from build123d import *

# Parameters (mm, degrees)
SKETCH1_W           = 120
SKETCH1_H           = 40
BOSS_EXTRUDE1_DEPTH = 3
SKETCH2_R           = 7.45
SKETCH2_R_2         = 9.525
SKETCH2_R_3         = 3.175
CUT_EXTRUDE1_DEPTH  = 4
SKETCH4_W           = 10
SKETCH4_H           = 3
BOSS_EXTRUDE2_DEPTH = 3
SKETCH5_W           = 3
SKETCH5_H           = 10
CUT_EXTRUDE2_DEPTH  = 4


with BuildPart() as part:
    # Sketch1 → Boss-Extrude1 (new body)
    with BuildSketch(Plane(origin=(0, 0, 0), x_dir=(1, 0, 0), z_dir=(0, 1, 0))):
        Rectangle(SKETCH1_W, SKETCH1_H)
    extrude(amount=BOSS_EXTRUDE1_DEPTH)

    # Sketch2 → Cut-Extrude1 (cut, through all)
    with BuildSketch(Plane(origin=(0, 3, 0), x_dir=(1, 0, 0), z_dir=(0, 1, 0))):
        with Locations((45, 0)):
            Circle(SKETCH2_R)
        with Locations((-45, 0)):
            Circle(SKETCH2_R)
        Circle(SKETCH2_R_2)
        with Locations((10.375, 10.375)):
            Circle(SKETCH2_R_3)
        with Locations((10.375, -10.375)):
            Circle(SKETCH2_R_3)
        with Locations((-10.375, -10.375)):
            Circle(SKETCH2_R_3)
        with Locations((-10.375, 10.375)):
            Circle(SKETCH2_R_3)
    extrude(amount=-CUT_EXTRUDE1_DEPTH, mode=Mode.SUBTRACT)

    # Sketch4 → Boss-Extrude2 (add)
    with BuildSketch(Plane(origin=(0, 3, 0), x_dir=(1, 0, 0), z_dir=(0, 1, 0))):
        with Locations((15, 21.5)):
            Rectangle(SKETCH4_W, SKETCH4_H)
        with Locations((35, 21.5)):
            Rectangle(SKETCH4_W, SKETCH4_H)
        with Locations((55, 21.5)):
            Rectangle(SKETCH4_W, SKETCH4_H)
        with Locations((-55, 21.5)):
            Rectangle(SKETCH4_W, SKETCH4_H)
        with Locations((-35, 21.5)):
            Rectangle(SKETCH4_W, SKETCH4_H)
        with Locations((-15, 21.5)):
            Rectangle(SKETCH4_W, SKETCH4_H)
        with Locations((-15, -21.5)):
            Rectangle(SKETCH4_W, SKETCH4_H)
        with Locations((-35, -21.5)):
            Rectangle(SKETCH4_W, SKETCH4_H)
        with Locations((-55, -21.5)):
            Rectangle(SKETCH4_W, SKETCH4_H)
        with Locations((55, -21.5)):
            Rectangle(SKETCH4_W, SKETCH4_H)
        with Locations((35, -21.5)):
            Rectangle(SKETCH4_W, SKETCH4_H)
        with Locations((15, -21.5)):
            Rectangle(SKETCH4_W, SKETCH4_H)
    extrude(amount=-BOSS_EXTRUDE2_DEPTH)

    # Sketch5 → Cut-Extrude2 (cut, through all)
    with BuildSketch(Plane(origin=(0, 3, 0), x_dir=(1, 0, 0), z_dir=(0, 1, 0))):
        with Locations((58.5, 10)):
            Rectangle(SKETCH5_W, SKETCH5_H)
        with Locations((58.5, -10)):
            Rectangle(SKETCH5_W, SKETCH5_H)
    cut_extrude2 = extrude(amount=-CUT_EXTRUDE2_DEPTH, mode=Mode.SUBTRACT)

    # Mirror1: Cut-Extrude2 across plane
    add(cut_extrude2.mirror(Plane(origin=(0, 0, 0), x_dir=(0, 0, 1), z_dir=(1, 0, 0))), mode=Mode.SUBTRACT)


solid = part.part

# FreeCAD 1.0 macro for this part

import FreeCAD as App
import Part
import Sketcher
Q = App.Units.Quantity

doc = App.newDocument("Part")
body = doc.addObject("PartDesign::Body", "Body")

# Sketch on XZ plane
sketch1 = doc.addObject("Sketcher::SketchObject", "Sketch")
body.addObject(sketch1)
sketch1.AttachmentSupport = (doc.XZ_Plane, [""])
sketch1.MapMode = "FlatFace"
sketch1.addGeometry([
    Part.LineSegment(App.Vector(-60, -20, 0), App.Vector(-60, 20, 0)),
    Part.LineSegment(App.Vector(-60, 20, 0), App.Vector(60, 20, 0)),
    Part.LineSegment(App.Vector(60, 20, 0), App.Vector(60, -20, 0)),
    Part.LineSegment(App.Vector(60, -20, 0), App.Vector(-60, -20, 0)),
], False)
sketch1.addConstraint([
    Sketcher.Constraint("Coincident", 0, 2, 1, 1),
    Sketcher.Constraint("Coincident", 1, 2, 2, 1),
    Sketcher.Constraint("Coincident", 2, 2, 3, 1),
    Sketcher.Constraint("Coincident", 3, 2, 0, 1),
    Sketcher.Constraint("Vertical", 0),
    Sketcher.Constraint("Horizontal", 1),
    Sketcher.Constraint("Vertical", 2),
    Sketcher.Constraint("Horizontal", 3),
    Sketcher.Constraint("Symmetric", 0, 2, 2, 2, -1, 1),
    Sketcher.Constraint("DistanceX", 1, 1, 1, 2, Q("120 mm")),
    Sketcher.Constraint("DistanceY", 0, 1, 0, 2, Q("40 mm")),
])
pad1 = doc.addObject("PartDesign::Pad", "Pad")
body.addObject(pad1)
pad1.Profile = sketch1
pad1.Length = 3
pad1.Reversed = True

# Sketch on XZ plane
sketch2 = doc.addObject("Sketcher::SketchObject", "Sketch001")
body.addObject(sketch2)
sketch2.AttachmentSupport = (doc.XZ_Plane, [""])
sketch2.MapMode = "FlatFace"
sketch2.AttachmentOffset = App.Placement(App.Vector(0, 0, -3), App.Rotation())
sketch2.addGeometry([
    Part.Circle(App.Vector(45, 0, 0), App.Vector(0, 0, 1), 7.5),  # 0
    Part.Circle(App.Vector(-45, 0, 0), App.Vector(0, 0, 1), 7.5),  # 1
    Part.Circle(App.Vector(0, 0, 0), App.Vector(0, 0, 1), 9.5),  # 2
    Part.Circle(App.Vector(10.4, -10.4, 0), App.Vector(0, 0, 1), 3.2),  # 3
    Part.Circle(App.Vector(10.4, 10.4, 0), App.Vector(0, 0, 1), 3.2),  # 4
    Part.Circle(App.Vector(-10.4, 10.4, 0), App.Vector(0, 0, 1), 3.2),  # 5
    Part.Circle(App.Vector(-10.4, -10.4, 0), App.Vector(0, 0, 1), 3.2),  # 6
], False)
sketch2.addConstraint([
    Sketcher.Constraint("Coincident", 2, 3, -1, 1),
    Sketcher.Constraint("Equal", 0, 1),
    Sketcher.Constraint("Equal", 3, 4),
    Sketcher.Constraint("Equal", 4, 5),
    Sketcher.Constraint("Equal", 5, 6),
    Sketcher.Constraint("Symmetric", 0, 3, 1, 3, -1, 1),
    Sketcher.Constraint("Symmetric", 3, 3, 5, 3, -1, 1),
    Sketcher.Constraint("Symmetric", 4, 3, 6, 3, -1, 1),
    Sketcher.Constraint("Symmetric", 4, 3, 5, 3, -2),
    Sketcher.Constraint("PointOnObject", 0, 3, -1),
    Sketcher.Constraint("Diameter", 0, Q("14.9 mm")),
    Sketcher.Constraint("Diameter", 2, Q("19.05 mm")),
    Sketcher.Constraint("Diameter", 3, Q("6.35 mm")),
    Sketcher.Constraint("DistanceX", -1, 1, 0, 3, Q("45 mm")),
    Sketcher.Constraint("DistanceY", 3, 3, 4, 3, Q("20.75 mm")),
    Sketcher.Constraint("DistanceX", 5, 3, 4, 3, Q("20.75 mm")),
])
pocket1 = doc.addObject("PartDesign::Pocket", "Pocket")
body.addObject(pocket1)
pocket1.Profile = sketch2
pocket1.Type = "ThroughAll"
pocket1.Reversed = True

# Sketch on XZ plane
sketch3 = doc.addObject("Sketcher::SketchObject", "Sketch002")
body.addObject(sketch3)
sketch3.AttachmentSupport = (doc.XZ_Plane, [""])
sketch3.MapMode = "FlatFace"
sketch3.AttachmentOffset = App.Placement(App.Vector(0, 0, -3), App.Rotation())
sketch3.addGeometry([
    Part.LineSegment(App.Vector(10, -23, 0), App.Vector(10, -20, 0)),  # 0
    Part.LineSegment(App.Vector(10, -20, 0), App.Vector(20, -20, 0)),  # 1
    Part.LineSegment(App.Vector(20, -20, 0), App.Vector(20, -23, 0)),  # 2
    Part.LineSegment(App.Vector(20, -23, 0), App.Vector(10, -23, 0)),  # 3
    Part.LineSegment(App.Vector(30, -23, 0), App.Vector(30, -20, 0)),  # 4
    Part.LineSegment(App.Vector(30, -20, 0), App.Vector(40, -20, 0)),  # 5
    Part.LineSegment(App.Vector(40, -20, 0), App.Vector(40, -23, 0)),  # 6
    Part.LineSegment(App.Vector(40, -23, 0), App.Vector(30, -23, 0)),  # 7
    Part.LineSegment(App.Vector(50, -23, 0), App.Vector(50, -20, 0)),  # 8
    Part.LineSegment(App.Vector(50, -20, 0), App.Vector(60, -20, 0)),  # 9
    Part.LineSegment(App.Vector(60, -20, 0), App.Vector(60, -23, 0)),  # 10
    Part.LineSegment(App.Vector(60, -23, 0), App.Vector(50, -23, 0)),  # 11
    Part.LineSegment(App.Vector(-60, -23, 0), App.Vector(-60, -20, 0)),  # 12
    Part.LineSegment(App.Vector(-60, -20, 0), App.Vector(-50, -20, 0)),  # 13
    Part.LineSegment(App.Vector(-50, -20, 0), App.Vector(-50, -23, 0)),  # 14
    Part.LineSegment(App.Vector(-50, -23, 0), App.Vector(-60, -23, 0)),  # 15
    Part.LineSegment(App.Vector(-40, -23, 0), App.Vector(-40, -20, 0)),  # 16
    Part.LineSegment(App.Vector(-40, -20, 0), App.Vector(-30, -20, 0)),  # 17
    Part.LineSegment(App.Vector(-30, -20, 0), App.Vector(-30, -23, 0)),  # 18
    Part.LineSegment(App.Vector(-30, -23, 0), App.Vector(-40, -23, 0)),  # 19
    Part.LineSegment(App.Vector(-20, -23, 0), App.Vector(-20, -20, 0)),  # 20
    Part.LineSegment(App.Vector(-20, -20, 0), App.Vector(-10, -20, 0)),  # 21
    Part.LineSegment(App.Vector(-10, -20, 0), App.Vector(-10, -23, 0)),  # 22
    Part.LineSegment(App.Vector(-10, -23, 0), App.Vector(-20, -23, 0)),  # 23
    Part.LineSegment(App.Vector(-20, 20, 0), App.Vector(-20, 23, 0)),  # 24
    Part.LineSegment(App.Vector(-20, 23, 0), App.Vector(-10, 23, 0)),  # 25
    Part.LineSegment(App.Vector(-10, 23, 0), App.Vector(-10, 20, 0)),  # 26
    Part.LineSegment(App.Vector(-10, 20, 0), App.Vector(-20, 20, 0)),  # 27
    Part.LineSegment(App.Vector(-40, 20, 0), App.Vector(-40, 23, 0)),  # 28
    Part.LineSegment(App.Vector(-40, 23, 0), App.Vector(-30, 23, 0)),  # 29
    Part.LineSegment(App.Vector(-30, 23, 0), App.Vector(-30, 20, 0)),  # 30
    Part.LineSegment(App.Vector(-30, 20, 0), App.Vector(-40, 20, 0)),  # 31
    Part.LineSegment(App.Vector(-60, 20, 0), App.Vector(-60, 23, 0)),  # 32
    Part.LineSegment(App.Vector(-60, 23, 0), App.Vector(-50, 23, 0)),  # 33
    Part.LineSegment(App.Vector(-50, 23, 0), App.Vector(-50, 20, 0)),  # 34
    Part.LineSegment(App.Vector(-50, 20, 0), App.Vector(-60, 20, 0)),  # 35
    Part.LineSegment(App.Vector(50, 20, 0), App.Vector(50, 23, 0)),  # 36
    Part.LineSegment(App.Vector(50, 23, 0), App.Vector(60, 23, 0)),  # 37
    Part.LineSegment(App.Vector(60, 23, 0), App.Vector(60, 20, 0)),  # 38
    Part.LineSegment(App.Vector(60, 20, 0), App.Vector(50, 20, 0)),  # 39
    Part.LineSegment(App.Vector(30, 20, 0), App.Vector(30, 23, 0)),  # 40
    Part.LineSegment(App.Vector(30, 23, 0), App.Vector(40, 23, 0)),  # 41
    Part.LineSegment(App.Vector(40, 23, 0), App.Vector(40, 20, 0)),  # 42
    Part.LineSegment(App.Vector(40, 20, 0), App.Vector(30, 20, 0)),  # 43
    Part.LineSegment(App.Vector(10, 20, 0), App.Vector(10, 23, 0)),  # 44
    Part.LineSegment(App.Vector(10, 23, 0), App.Vector(20, 23, 0)),  # 45
    Part.LineSegment(App.Vector(20, 23, 0), App.Vector(20, 20, 0)),  # 46
    Part.LineSegment(App.Vector(20, 20, 0), App.Vector(10, 20, 0)),  # 47
], False)
sketch3.addConstraint([
    Sketcher.Constraint("Coincident", 0, 2, 1, 1),
    Sketcher.Constraint("Coincident", 1, 2, 2, 1),
    Sketcher.Constraint("Coincident", 2, 2, 3, 1),
    Sketcher.Constraint("Coincident", 3, 2, 0, 1),
    Sketcher.Constraint("Coincident", 4, 2, 5, 1),
    Sketcher.Constraint("Coincident", 5, 2, 6, 1),
    Sketcher.Constraint("Coincident", 6, 2, 7, 1),
    Sketcher.Constraint("Coincident", 7, 2, 4, 1),
    Sketcher.Constraint("Coincident", 8, 2, 9, 1),
    Sketcher.Constraint("Coincident", 9, 2, 10, 1),
    Sketcher.Constraint("Coincident", 10, 2, 11, 1),
    Sketcher.Constraint("Coincident", 11, 2, 8, 1),
    Sketcher.Constraint("Coincident", 12, 2, 13, 1),
    Sketcher.Constraint("Coincident", 13, 2, 14, 1),
    Sketcher.Constraint("Coincident", 14, 2, 15, 1),
    Sketcher.Constraint("Coincident", 15, 2, 12, 1),
    Sketcher.Constraint("Coincident", 16, 2, 17, 1),
    Sketcher.Constraint("Coincident", 17, 2, 18, 1),
    Sketcher.Constraint("Coincident", 18, 2, 19, 1),
    Sketcher.Constraint("Coincident", 19, 2, 16, 1),
    Sketcher.Constraint("Coincident", 20, 2, 21, 1),
    Sketcher.Constraint("Coincident", 21, 2, 22, 1),
    Sketcher.Constraint("Coincident", 22, 2, 23, 1),
    Sketcher.Constraint("Coincident", 23, 2, 20, 1),
    Sketcher.Constraint("Coincident", 24, 2, 25, 1),
    Sketcher.Constraint("Coincident", 25, 2, 26, 1),
    Sketcher.Constraint("Coincident", 26, 2, 27, 1),
    Sketcher.Constraint("Coincident", 27, 2, 24, 1),
    Sketcher.Constraint("Coincident", 28, 2, 29, 1),
    Sketcher.Constraint("Coincident", 29, 2, 30, 1),
    Sketcher.Constraint("Coincident", 30, 2, 31, 1),
    Sketcher.Constraint("Coincident", 31, 2, 28, 1),
    Sketcher.Constraint("Coincident", 32, 2, 33, 1),
    Sketcher.Constraint("Coincident", 33, 2, 34, 1),
    Sketcher.Constraint("Coincident", 34, 2, 35, 1),
    Sketcher.Constraint("Coincident", 35, 2, 32, 1),
    Sketcher.Constraint("Coincident", 36, 2, 37, 1),
    Sketcher.Constraint("Coincident", 37, 2, 38, 1),
    Sketcher.Constraint("Coincident", 38, 2, 39, 1),
    Sketcher.Constraint("Coincident", 39, 2, 36, 1),
    Sketcher.Constraint("Coincident", 40, 2, 41, 1),
    Sketcher.Constraint("Coincident", 41, 2, 42, 1),
    Sketcher.Constraint("Coincident", 42, 2, 43, 1),
    Sketcher.Constraint("Coincident", 43, 2, 40, 1),
    Sketcher.Constraint("Coincident", 44, 2, 45, 1),
    Sketcher.Constraint("Coincident", 45, 2, 46, 1),
    Sketcher.Constraint("Coincident", 46, 2, 47, 1),
    Sketcher.Constraint("Coincident", 47, 2, 44, 1),
    Sketcher.Constraint("Vertical", 0),
    Sketcher.Constraint("Horizontal", 1),
    Sketcher.Constraint("Vertical", 2),
    Sketcher.Constraint("Horizontal", 3),
    Sketcher.Constraint("Vertical", 4),
    Sketcher.Constraint("Horizontal", 5),
    Sketcher.Constraint("Vertical", 6),
    Sketcher.Constraint("Horizontal", 7),
    Sketcher.Constraint("Vertical", 8),
    Sketcher.Constraint("Horizontal", 9),
    Sketcher.Constraint("Vertical", 10),
    Sketcher.Constraint("Horizontal", 11),
    Sketcher.Constraint("Vertical", 12),
    Sketcher.Constraint("Horizontal", 13),
    Sketcher.Constraint("Vertical", 14),
    Sketcher.Constraint("Horizontal", 15),
    Sketcher.Constraint("Vertical", 16),
    Sketcher.Constraint("Horizontal", 17),
    Sketcher.Constraint("Vertical", 18),
    Sketcher.Constraint("Horizontal", 19),
    Sketcher.Constraint("Vertical", 20),
    Sketcher.Constraint("Horizontal", 21),
    Sketcher.Constraint("Vertical", 22),
    Sketcher.Constraint("Horizontal", 23),
    Sketcher.Constraint("Vertical", 24),
    Sketcher.Constraint("Horizontal", 25),
    Sketcher.Constraint("Vertical", 26),
    Sketcher.Constraint("Horizontal", 27),
    Sketcher.Constraint("Vertical", 28),
    Sketcher.Constraint("Horizontal", 29),
    Sketcher.Constraint("Vertical", 30),
    Sketcher.Constraint("Horizontal", 31),
    Sketcher.Constraint("Vertical", 32),
    Sketcher.Constraint("Horizontal", 33),
    Sketcher.Constraint("Vertical", 34),
    Sketcher.Constraint("Horizontal", 35),
    Sketcher.Constraint("Vertical", 36),
    Sketcher.Constraint("Horizontal", 37),
    Sketcher.Constraint("Vertical", 38),
    Sketcher.Constraint("Horizontal", 39),
    Sketcher.Constraint("Vertical", 40),
    Sketcher.Constraint("Horizontal", 41),
    Sketcher.Constraint("Vertical", 42),
    Sketcher.Constraint("Horizontal", 43),
    Sketcher.Constraint("Vertical", 44),
    Sketcher.Constraint("Horizontal", 45),
    Sketcher.Constraint("Vertical", 46),
    Sketcher.Constraint("Horizontal", 47),
    Sketcher.Constraint("Symmetric", 2, 2, 24, 2, -1, 1),
    Sketcher.Constraint("Symmetric", 0, 2, 26, 2, -1, 1),
    Sketcher.Constraint("Symmetric", 6, 2, 28, 2, -1, 1),
    Sketcher.Constraint("Symmetric", 4, 2, 30, 2, -1, 1),
    Sketcher.Constraint("Symmetric", 10, 2, 32, 2, -1, 1),
    Sketcher.Constraint("Symmetric", 8, 2, 34, 2, -1, 1),
    Sketcher.Constraint("Symmetric", 14, 2, 36, 2, -1, 1),
    Sketcher.Constraint("Symmetric", 12, 2, 38, 2, -1, 1),
    Sketcher.Constraint("Symmetric", 18, 2, 40, 2, -1, 1),
    Sketcher.Constraint("Symmetric", 16, 2, 42, 2, -1, 1),
    Sketcher.Constraint("Symmetric", 22, 2, 44, 2, -1, 1),
    Sketcher.Constraint("Symmetric", 20, 2, 46, 2, -1, 1),
    Sketcher.Constraint("Symmetric", 9, 2, 12, 2, -2),
    Sketcher.Constraint("Symmetric", 11, 2, 14, 2, -2),
    Sketcher.Constraint("Symmetric", 5, 2, 16, 2, -2),
    Sketcher.Constraint("Symmetric", 7, 2, 18, 2, -2),
    Sketcher.Constraint("Symmetric", 1, 2, 20, 2, -2),
    Sketcher.Constraint("Symmetric", 3, 2, 22, 2, -2),
    Sketcher.Constraint("Horizontal", 1, 2, 4, 2),
    Sketcher.Constraint("Horizontal", 3, 2, 6, 2),
    Sketcher.Constraint("Horizontal", 5, 2, 8, 2),
    Sketcher.Constraint("Horizontal", 7, 2, 10, 2),
    Sketcher.Constraint("Equal", 3, 5),
    Sketcher.Constraint("Equal", 7, 9),
    Sketcher.Constraint("DistanceX", 1, 1, 1, 2, Q("10 mm")),
    Sketcher.Constraint("DistanceY", 0, 1, 0, 2, Q("3 mm")),
    Sketcher.Constraint("DistanceX", -1, 1, 0, 2, Q("10 mm")),
    Sketcher.Constraint("DistanceY", 0, 2, -1, 1, Q("20 mm")),
    Sketcher.Constraint("DistanceX", -1, 1, 4, 2, Q("30 mm")),
    Sketcher.Constraint("DistanceX", -1, 1, 8, 2, Q("50 mm")),
])
pad2 = doc.addObject("PartDesign::Pad", "Pad001")
body.addObject(pad2)
pad2.Profile = sketch3
pad2.Length = 3

# Sketch on XZ plane
sketch4 = doc.addObject("Sketcher::SketchObject", "Sketch003")
body.addObject(sketch4)
sketch4.AttachmentSupport = (doc.XZ_Plane, [""])
sketch4.MapMode = "FlatFace"
sketch4.AttachmentOffset = App.Placement(App.Vector(0, 0, -3), App.Rotation())
sketch4.addGeometry([
    Part.LineSegment(App.Vector(57, -15, 0), App.Vector(57, -5, 0)),  # 0
    Part.LineSegment(App.Vector(57, -5, 0), App.Vector(60, -5, 0)),  # 1
    Part.LineSegment(App.Vector(60, -5, 0), App.Vector(60, -15, 0)),  # 2
    Part.LineSegment(App.Vector(60, -15, 0), App.Vector(57, -15, 0)),  # 3
    Part.LineSegment(App.Vector(57, 5, 0), App.Vector(57, 15, 0)),  # 4
    Part.LineSegment(App.Vector(57, 15, 0), App.Vector(60, 15, 0)),  # 5
    Part.LineSegment(App.Vector(60, 15, 0), App.Vector(60, 5, 0)),  # 6
    Part.LineSegment(App.Vector(60, 5, 0), App.Vector(57, 5, 0)),  # 7
], False)
sketch4.addConstraint([
    Sketcher.Constraint("Coincident", 0, 2, 1, 1),
    Sketcher.Constraint("Coincident", 1, 2, 2, 1),
    Sketcher.Constraint("Coincident", 2, 2, 3, 1),
    Sketcher.Constraint("Coincident", 3, 2, 0, 1),
    Sketcher.Constraint("Coincident", 4, 2, 5, 1),
    Sketcher.Constraint("Coincident", 5, 2, 6, 1),
    Sketcher.Constraint("Coincident", 6, 2, 7, 1),
    Sketcher.Constraint("Coincident", 7, 2, 4, 1),
    Sketcher.Constraint("Vertical", 0),
    Sketcher.Constraint("Horizontal", 1),
    Sketcher.Constraint("Vertical", 2),
    Sketcher.Constraint("Horizontal", 3),
    Sketcher.Constraint("Vertical", 4),
    Sketcher.Constraint("Horizontal", 5),
    Sketcher.Constraint("Vertical", 6),
    Sketcher.Constraint("Horizontal", 7),
    Sketcher.Constraint("Symmetric", 3, 2, 4, 2, -1),
    Sketcher.Constraint("Symmetric", 1, 2, 6, 2, -1),
    Sketcher.Constraint("DistanceX", 1, 1, 1, 2, Q("3 mm")),
    Sketcher.Constraint("DistanceY", 0, 1, 0, 2, Q("10 mm")),
    Sketcher.Constraint("DistanceX", -1, 1, 0, 2, Q("57 mm")),
    Sketcher.Constraint("DistanceY", 0, 2, -1, 1, Q("5 mm")),
])
pocket2 = doc.addObject("PartDesign::Pocket", "Pocket001")
body.addObject(pocket2)
pocket2.Profile = sketch4
pocket2.Type = "ThroughAll"
pocket2.Reversed = True
doc.recompute()

mirrored = doc.addObject("PartDesign::Mirrored", "Mirrored")
body.addObject(mirrored)
mirrored.Originals = [pocket2]
mirrored.MirrorPlane = (doc.YZ_Plane, [""])
body.Tip = mirrored

doc.recompute()
